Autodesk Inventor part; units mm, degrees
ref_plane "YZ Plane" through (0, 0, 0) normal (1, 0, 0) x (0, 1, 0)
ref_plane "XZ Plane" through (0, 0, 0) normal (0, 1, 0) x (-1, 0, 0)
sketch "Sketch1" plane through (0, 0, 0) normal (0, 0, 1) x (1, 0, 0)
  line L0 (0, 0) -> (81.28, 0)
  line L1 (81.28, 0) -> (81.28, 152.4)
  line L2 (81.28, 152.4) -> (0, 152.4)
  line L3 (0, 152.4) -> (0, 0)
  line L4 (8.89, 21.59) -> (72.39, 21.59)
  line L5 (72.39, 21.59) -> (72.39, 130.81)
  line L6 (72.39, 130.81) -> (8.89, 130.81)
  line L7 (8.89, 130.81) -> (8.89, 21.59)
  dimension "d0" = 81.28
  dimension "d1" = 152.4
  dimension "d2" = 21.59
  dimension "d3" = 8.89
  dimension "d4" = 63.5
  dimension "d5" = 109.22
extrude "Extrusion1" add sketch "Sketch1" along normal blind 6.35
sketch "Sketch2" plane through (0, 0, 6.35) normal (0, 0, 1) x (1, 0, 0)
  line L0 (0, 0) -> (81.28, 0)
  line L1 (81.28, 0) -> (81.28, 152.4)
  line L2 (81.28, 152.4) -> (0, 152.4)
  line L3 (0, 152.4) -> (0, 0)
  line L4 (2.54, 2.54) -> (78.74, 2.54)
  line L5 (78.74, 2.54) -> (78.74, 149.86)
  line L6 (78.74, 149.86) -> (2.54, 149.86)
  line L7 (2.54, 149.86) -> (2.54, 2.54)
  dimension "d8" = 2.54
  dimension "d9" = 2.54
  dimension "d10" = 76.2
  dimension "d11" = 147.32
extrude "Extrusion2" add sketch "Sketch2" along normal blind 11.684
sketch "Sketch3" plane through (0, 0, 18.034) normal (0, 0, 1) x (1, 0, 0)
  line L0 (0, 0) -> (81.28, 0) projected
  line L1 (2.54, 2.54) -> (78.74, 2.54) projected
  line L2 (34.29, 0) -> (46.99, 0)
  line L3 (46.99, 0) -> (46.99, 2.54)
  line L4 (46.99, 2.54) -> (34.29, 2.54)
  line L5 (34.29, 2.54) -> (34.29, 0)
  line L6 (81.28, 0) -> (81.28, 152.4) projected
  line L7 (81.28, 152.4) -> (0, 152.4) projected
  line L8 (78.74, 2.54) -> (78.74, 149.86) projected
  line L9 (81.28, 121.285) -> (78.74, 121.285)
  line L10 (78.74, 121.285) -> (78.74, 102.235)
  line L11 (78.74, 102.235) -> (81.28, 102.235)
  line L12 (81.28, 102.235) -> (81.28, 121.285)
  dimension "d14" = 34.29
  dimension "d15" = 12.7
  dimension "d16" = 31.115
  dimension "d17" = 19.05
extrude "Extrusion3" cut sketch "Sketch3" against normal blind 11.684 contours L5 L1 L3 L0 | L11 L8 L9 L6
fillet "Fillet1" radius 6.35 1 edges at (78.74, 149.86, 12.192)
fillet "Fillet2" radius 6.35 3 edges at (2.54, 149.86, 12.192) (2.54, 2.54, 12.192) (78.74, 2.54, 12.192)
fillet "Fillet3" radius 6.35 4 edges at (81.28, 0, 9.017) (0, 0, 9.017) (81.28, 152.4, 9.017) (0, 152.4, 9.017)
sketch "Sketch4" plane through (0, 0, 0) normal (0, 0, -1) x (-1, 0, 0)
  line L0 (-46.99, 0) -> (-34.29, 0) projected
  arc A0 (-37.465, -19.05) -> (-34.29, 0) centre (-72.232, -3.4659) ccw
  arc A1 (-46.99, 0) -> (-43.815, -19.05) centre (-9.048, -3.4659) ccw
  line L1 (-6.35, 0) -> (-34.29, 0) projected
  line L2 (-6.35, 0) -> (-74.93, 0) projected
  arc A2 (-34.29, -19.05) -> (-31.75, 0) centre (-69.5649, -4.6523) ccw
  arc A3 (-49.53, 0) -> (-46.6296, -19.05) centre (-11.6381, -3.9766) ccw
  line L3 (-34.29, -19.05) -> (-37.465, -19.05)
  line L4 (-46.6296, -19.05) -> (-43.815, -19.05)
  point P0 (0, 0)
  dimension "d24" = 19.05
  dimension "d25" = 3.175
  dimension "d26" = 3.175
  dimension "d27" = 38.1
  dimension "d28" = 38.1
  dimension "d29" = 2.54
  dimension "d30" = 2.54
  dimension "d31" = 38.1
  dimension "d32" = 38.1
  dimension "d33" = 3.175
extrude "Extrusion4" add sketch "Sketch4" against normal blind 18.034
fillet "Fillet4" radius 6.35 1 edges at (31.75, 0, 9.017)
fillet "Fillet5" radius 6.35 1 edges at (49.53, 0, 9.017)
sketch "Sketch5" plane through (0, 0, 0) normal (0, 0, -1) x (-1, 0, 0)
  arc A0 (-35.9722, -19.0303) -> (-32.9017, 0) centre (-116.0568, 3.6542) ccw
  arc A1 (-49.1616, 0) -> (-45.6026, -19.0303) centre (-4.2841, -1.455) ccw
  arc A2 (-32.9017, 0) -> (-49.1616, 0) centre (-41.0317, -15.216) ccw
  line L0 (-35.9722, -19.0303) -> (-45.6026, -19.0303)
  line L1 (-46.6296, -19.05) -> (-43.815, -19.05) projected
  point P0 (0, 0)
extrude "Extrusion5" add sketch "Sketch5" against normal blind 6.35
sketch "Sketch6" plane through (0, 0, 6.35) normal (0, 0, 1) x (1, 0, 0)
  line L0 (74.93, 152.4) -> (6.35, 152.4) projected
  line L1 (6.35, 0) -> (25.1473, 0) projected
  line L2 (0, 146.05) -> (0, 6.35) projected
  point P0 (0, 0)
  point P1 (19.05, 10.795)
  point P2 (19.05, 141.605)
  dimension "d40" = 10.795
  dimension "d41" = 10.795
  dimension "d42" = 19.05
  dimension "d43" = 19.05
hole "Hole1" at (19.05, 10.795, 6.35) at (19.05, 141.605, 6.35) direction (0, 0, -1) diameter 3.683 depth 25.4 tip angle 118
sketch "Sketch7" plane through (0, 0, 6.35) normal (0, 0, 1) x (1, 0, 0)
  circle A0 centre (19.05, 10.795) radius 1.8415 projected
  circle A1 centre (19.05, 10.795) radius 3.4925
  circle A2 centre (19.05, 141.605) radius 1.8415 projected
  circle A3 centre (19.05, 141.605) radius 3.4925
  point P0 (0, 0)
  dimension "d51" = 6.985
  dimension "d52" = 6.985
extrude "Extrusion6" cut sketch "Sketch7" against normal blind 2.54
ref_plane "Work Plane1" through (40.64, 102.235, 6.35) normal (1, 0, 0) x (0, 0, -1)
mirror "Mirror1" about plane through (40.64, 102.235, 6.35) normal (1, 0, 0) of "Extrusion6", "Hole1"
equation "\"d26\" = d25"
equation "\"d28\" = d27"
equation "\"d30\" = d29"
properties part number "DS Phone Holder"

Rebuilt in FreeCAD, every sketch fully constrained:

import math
import FreeCAD as App
import Part
import Sketcher
from FreeCAD import Vector
Q = App.Units.Quantity


def edges_at(feature, points):
    """Names of the edges that pass closest to the given points."""
    edges = feature.Shape.Edges
    near = lambda p: min(range(len(edges)), key=lambda i: edges[i].distToShape(Part.Vertex(*p))[0])
    return sorted({f"Edge{near(p) + 1}" for p in points})


def add_polygon(sketch, points):
    """Adds a closed chain of lines whose ends are joined by coincident constraints."""
    first, n = sketch.GeometryCount, len(points)
    for a, b in zip(points, points[1:] + points[:1]):
        sketch.addGeometry(Part.LineSegment(App.Vector(*a, 0), App.Vector(*b, 0)), False)
    for i in range(n):
        sketch.addConstraint(Sketcher.Constraint("Coincident", first + i, 2, first + (i + 1) % n, 1))

doc = App.newDocument("Part")
body = doc.addObject("PartDesign::Body", "Body")

sketch1 = doc.addObject("Sketcher::SketchObject", "Sketch")
body.addObject(sketch1)
sketch1.AttachmentSupport = (doc.XY_Plane, [""])
sketch1.MapMode = "FlatFace"
add_polygon(sketch1, [(0, 152), (0, 0), (81, 0), (81, 152)])
add_polygon(sketch1, [(72, 22), (9, 22), (9, 131), (72, 131)])
sketch1.addConstraint([
    Sketcher.Constraint("Vertical", 0),
    Sketcher.Constraint("Horizontal", 1),
    Sketcher.Constraint("Vertical", 2),
    Sketcher.Constraint("Horizontal", 3),
    Sketcher.Constraint("Horizontal", 4),
    Sketcher.Constraint("Vertical", 5),
    Sketcher.Constraint("Horizontal", 6),
    Sketcher.Constraint("Vertical", 7),
    Sketcher.Constraint("Coincident", 0, 2, -1, 1),
    Sketcher.Constraint("DistanceY", 0, 2, 0, 1, Q("6 in")),
    Sketcher.Constraint("DistanceX", 1, 1, 1, 2, Q("3.2 in")),
    Sketcher.Constraint("DistanceX", 4, 2, 4, 1, Q("2.5 in")),
    Sketcher.Constraint("DistanceY", 5, 1, 5, 2, Q("4.3 in")),
    Sketcher.Constraint("DistanceX", -1, 1, 4, 2, Q("0.35 in")),
    Sketcher.Constraint("DistanceY", -1, 1, 4, 2, Q("0.85 in")),
])
pad1 = doc.addObject("PartDesign::Pad", "Pad")
body.addObject(pad1)
pad1.Profile = sketch1
pad1.Length = Q("0.25 in")

sketch2 = doc.addObject("Sketcher::SketchObject", "Sketch001")
body.addObject(sketch2)
sketch2.AttachmentSupport = (doc.XY_Plane, [""])
sketch2.MapMode = "FlatFace"
sketch2.AttachmentOffset = App.Placement(Vector(0, 0, 0.25 * 25.4), App.Rotation())
add_polygon(sketch2, [(0, 152), (0, 0), (81, 0), (81, 152)])
add_polygon(sketch2, [(79, 3), (3, 3), (3, 150), (79, 150)])
sketch2.addConstraint([
    Sketcher.Constraint("Vertical", 0),
    Sketcher.Constraint("Horizontal", 1),
    Sketcher.Constraint("Vertical", 2),
    Sketcher.Constraint("Horizontal", 3),
    Sketcher.Constraint("Horizontal", 4),
    Sketcher.Constraint("Vertical", 5),
    Sketcher.Constraint("Horizontal", 6),
    Sketcher.Constraint("Vertical", 7),
    Sketcher.Constraint("Coincident", 0, 2, -1, 1),
    Sketcher.Constraint("DistanceX", 4, 2, 4, 1, Q("3 in")),
    Sketcher.Constraint("DistanceY", 5, 1, 5, 2, Q("5.8 in")),
    Sketcher.Constraint("DistanceX", -1, 1, 4, 2, Q("0.1 in")),
    Sketcher.Constraint("DistanceY", -1, 1, 4, 2, Q("0.1 in")),
    Sketcher.Constraint("DistanceY", 5, 2, 3, 2, Q("0.1 in")),
    Sketcher.Constraint("DistanceX", 6, 2, 2, 2, Q("0.1 in")),
])
pad2 = doc.addObject("PartDesign::Pad", "Pad001")
body.addObject(pad2)
pad2.Profile = sketch2
pad2.Length = Q("0.46 in")

sketch3 = doc.addObject("Sketcher::SketchObject", "Sketch002")
body.addObject(sketch3)
sketch3.AttachmentSupport = (doc.XY_Plane, [""])
sketch3.MapMode = "FlatFace"
sketch3.AttachmentOffset = App.Placement(Vector(0, 0, 0.71 * 25.4), App.Rotation())
add_polygon(sketch3, [(34.3, 2.5), (34.3, 0), (47, 0), (47, 2.5)])
add_polygon(sketch3, [(78.7, 102.2), (81.3, 102.2), (81.3, 121.3), (78.7, 121.3)])
sketch3.addConstraint([
    Sketcher.Constraint("Vertical", 0),
    Sketcher.Constraint("Horizontal", 1),
    Sketcher.Constraint("Vertical", 2),
    Sketcher.Constraint("Horizontal", 3),
    Sketcher.Constraint("Horizontal", 4),
    Sketcher.Constraint("Vertical", 5),
    Sketcher.Constraint("Horizontal", 6),
    Sketcher.Constraint("Vertical", 7),
    Sketcher.Constraint("PointOnObject", 0, 2, -1),
    Sketcher.Constraint("Equal", 6, 0),
    Sketcher.Constraint("DistanceX", 1, 1, 1, 2, Q("0.5 in")),
    Sketcher.Constraint("DistanceY", 5, 1, 5, 2, Q("0.75 in")),
    Sketcher.Constraint("DistanceX", -1, 1, 0, 2, Q("1.35 in")),
    Sketcher.Constraint("DistanceX", 2, 2, 4, 2, Q("1.35 in")),
    Sketcher.Constraint("DistanceX", 4, 1, 4, 2, Q("0.1 in")),
    Sketcher.Constraint("DistanceY", -1, 1, 4, 2, Q("4.025 in")),
])
pocket1 = doc.addObject("PartDesign::Pocket", "Pocket")
body.addObject(pocket1)
pocket1.Profile = sketch3
pocket1.Length = Q("0.46 in")
doc.recompute()

fillet = doc.addObject("PartDesign::Fillet", "Fillet")
body.addObject(fillet)
fillet.Base = (pocket1, edges_at(pocket1, [(78.74, 149.86, 12.192)]))
fillet.Radius = Q("0.25 in")
doc.recompute()

fillet2 = doc.addObject("PartDesign::Fillet", "Fillet001")
body.addObject(fillet2)
fillet2.Base = (fillet, edges_at(fillet, [(2.54, 149.86, 12.192), (2.54, 2.54, 12.192), (78.74, 2.54, 12.192)]))
fillet2.Radius = Q("0.25 in")
doc.recompute()

fillet3 = doc.addObject("PartDesign::Fillet", "Fillet002")
body.addObject(fillet3)
fillet3.Base = (fillet2, edges_at(fillet2, [
    (81.28, 0, 9.017),
    (0, 0, 9.017),
    (81.28, 152.4, 9.017),
    (0, 152.4, 9.017),
]))
fillet3.Radius = Q("0.25 in")

sketch4 = doc.addObject("Sketcher::SketchObject", "Sketch003")
body.addObject(sketch4)
sketch4.AttachmentSupport = (doc.XY_Plane, [""])
sketch4.MapMode = "FlatFace"
sketch4.addGeometry([
    Part.LineSegment(Vector(31.8, 0, 0), Vector(34.3, 0, 0)),
    Part.ArcOfCircle(Part.Circle(Vector(72.2, -3.5, 0), Vector(0, 0, 1), 38.1), math.radians(175), math.radians(204)),
    Part.LineSegment(Vector(37.5, -19.1, 0), Vector(34.3, -19.1, 0)),
    Part.ArcOfCircle(Part.Circle(Vector(69.6, -4.7, 0), Vector(0, 0, 1), 38.1), math.radians(173), math.radians(202)),
    Part.ArcOfCircle(Part.Circle(Vector(9, -3.5, 0), Vector(0, 0, 1), 38.1), math.radians(-24), math.radians(5)),
    Part.LineSegment(Vector(47, 0, 0), Vector(49.5, 0, 0)),
    Part.ArcOfCircle(Part.Circle(Vector(11.6, -4, 0), Vector(0, 0, 1), 38.1), math.radians(-23), math.radians(6)),
    Part.LineSegment(Vector(46.6, -19.1, 0), Vector(43.8, -19.1, 0)),
], False)
sketch4.addConstraint([
    Sketcher.Constraint("Coincident", 0, 2, 1, 1),
    Sketcher.Constraint("Coincident", 1, 2, 2, 1),
    Sketcher.Constraint("Coincident", 2, 2, 3, 2),
    Sketcher.Constraint("Coincident", 3, 1, 0, 1),
    Sketcher.Constraint("Coincident", 4, 2, 5, 1),
    Sketcher.Constraint("Coincident", 5, 2, 6, 2),
    Sketcher.Constraint("Coincident", 6, 1, 7, 1),
    Sketcher.Constraint("Coincident", 7, 2, 4, 1),
    Sketcher.Constraint("Horizontal", 0),
    Sketcher.Constraint("Horizontal", 2),
    Sketcher.Constraint("Horizontal", 5),
    Sketcher.Constraint("Horizontal", 7),
    Sketcher.Constraint("Equal", 1, 3),
    Sketcher.Constraint("Equal", 3, 4),
    Sketcher.Constraint("Equal", 4, 6),
    Sketcher.Constraint("PointOnObject", 0, 2, -1),
    Sketcher.Constraint("PointOnObject", 4, 2, -1),
    Sketcher.Constraint("Horizontal", 1, 3, 4, 3),
    Sketcher.Constraint("Horizontal", 2, 2, 6, 1),
    Sketcher.Constraint("Vertical", 0, 2, 2, 2),
    Sketcher.Constraint("Equal", 0, 5),
    Sketcher.Constraint("Radius", 1, Q("1.5 in")),
    Sketcher.Constraint("DistanceX", 0, 1, 0, 2, Q("0.1 in")),
    Sketcher.Constraint("DistanceX", 2, 2, 2, 1, Q("0.125 in")),
    Sketcher.Constraint("DistanceY", 1, 2, -1, 1, Q("0.75 in")),
    Sketcher.Constraint("DistanceX", 0, 2, 4, 2, Q("0.5 in")),
    Sketcher.Constraint("DistanceX", -1, 1, 0, 2, Q("1.35 in")),
    Sketcher.Constraint("DistanceX", 7, 2, 7, 1, Q("0.1108 in")),
])
pad3 = doc.addObject("PartDesign::Pad", "Pad002")
body.addObject(pad3)
pad3.Profile = sketch4
pad3.Length = Q("0.71 in")
doc.recompute()

fillet4 = doc.addObject("PartDesign::Fillet", "Fillet003")
body.addObject(fillet4)
fillet4.Base = (pad3, edges_at(pad3, [(31.75, 0, 9.017)]))
fillet4.Radius = Q("0.25 in")
doc.recompute()

fillet5 = doc.addObject("PartDesign::Fillet", "Fillet004")
body.addObject(fillet5)
fillet5.Base = (fillet4, edges_at(fillet4, [(49.53, 0, 9.017)]))
fillet5.Radius = Q("0.25 in")

sketch5 = doc.addObject("Sketcher::SketchObject", "Sketch004")
body.addObject(sketch5)
sketch5.AttachmentSupport = (doc.XY_Plane, [""])
sketch5.MapMode = "FlatFace"
sketch5.addGeometry([
    Part.LineSegment(Vector(46, -19, 0), Vector(36, -19, 0)),
    Part.ArcOfCircle(Part.Circle(Vector(116, 4, 0), Vector(0, 0, 1), 83), math.radians(-177.48), math.radians(-164.18)),
    Part.ArcOfCircle(Part.Circle(Vector(41, -15, 0), Vector(0, 0, 1), 17), math.radians(62), math.radians(118)),
    Part.ArcOfCircle(Part.Circle(Vector(4, -1, 0), Vector(0, 0, 1), 45), math.radians(-23), math.radians(2)),
], False)
sketch5.addConstraint([
    Sketcher.Constraint("Coincident", 0, 2, 1, 2),
    Sketcher.Constraint("Coincident", 1, 1, 2, 2),
    Sketcher.Constraint("Coincident", 2, 1, 3, 2),
    Sketcher.Constraint("Coincident", 3, 1, 0, 1),
    Sketcher.Constraint("Horizontal", 0),
    Sketcher.Constraint("PointOnObject", 1, 1, -1),
    Sketcher.Constraint("PointOnObject", 2, 1, -1),
    Sketcher.Constraint("Radius", 2, Q("0.6792 in")),
    Sketcher.Constraint("Radius", 1, 83.2328),
    Sketcher.Constraint("Radius", 3, 44.901),
    Sketcher.Constraint("DistanceX", 0, 2, 0, 1, 9.6304),
    Sketcher.Constraint("DistanceX", -1, 1, 2, 1, Q("1.9355 in")),
    Sketcher.Constraint("DistanceY", 2, 3, 1, 3, Q("0.7429 in")),
    Sketcher.Constraint("DistanceX", 3, 3, 1, 3, Q("4.4004 in")),
    Sketcher.Constraint("DistanceX", 0, 2, 2, 3, Q("0.1992 in")),
])
pad4 = doc.addObject("PartDesign::Pad", "Pad003")
body.addObject(pad4)
pad4.Profile = sketch5
pad4.Length = Q("0.25 in")

sketch6 = doc.addObject("Sketcher::SketchObject", "Sketch005")
body.addObject(sketch6)
sketch6.AttachmentSupport = (doc.XY_Plane, [""])
sketch6.MapMode = "FlatFace"
sketch6.AttachmentOffset = App.Placement(Vector(0, 0, 0.25 * 25.4), App.Rotation())
sketch6.addGeometry([
    Part.Circle(Vector(19.1, 10.8, 0), Vector(0, 0, 1), 1.8),
    Part.Circle(Vector(19.1, 141.6, 0), Vector(0, 0, 1), 1.8),
], False)
sketch6.addConstraint([
    Sketcher.Constraint("Equal", 0, 1),
    Sketcher.Constraint("Vertical", 0, 3, 1, 3),
    Sketcher.Constraint("Diameter", 0, Q("0.145 in")),
    Sketcher.Constraint("DistanceX", -1, 1, 0, 3, Q("0.75 in")),
    Sketcher.Constraint("DistanceY", 0, 3, 1, 3, Q("5.15 in")),
    Sketcher.Constraint("DistanceY", -1, 1, 0, 3, Q("0.425 in")),
])
doc.recompute()
hole = doc.addObject("PartDesign::Hole", "Hole")
body.addObject(hole)
hole.Profile = sketch6
hole.ThreadType = "None"
hole.Diameter = Q("0.145 in")
hole.DepthType = "Dimension"
hole.Depth = Q("1 in")
hole.DrillPoint = "Angled"
hole.DrillPointAngle = 118

sketch7 = doc.addObject("Sketcher::SketchObject", "Sketch006")
body.addObject(sketch7)
sketch7.AttachmentSupport = (doc.XY_Plane, [""])
sketch7.MapMode = "FlatFace"
sketch7.AttachmentOffset = App.Placement(Vector(0, 0, 0.25 * 25.4), App.Rotation())
sketch7.addGeometry([
    Part.Circle(Vector(19.1, 10.8, 0), Vector(0, 0, 1), 3.5),
    Part.Circle(Vector(19.1, 10.8, 0), Vector(0, 0, 1), 1.8),
    Part.Circle(Vector(19.1, 141.6, 0), Vector(0, 0, 1), 3.5),
    Part.Circle(Vector(19.1, 141.6, 0), Vector(0, 0, 1), 1.8),
], False)
sketch7.addConstraint([
    Sketcher.Constraint("Coincident", 1, 3, 0, 3),
    Sketcher.Constraint("Coincident", 3, 3, 2, 3),
    Sketcher.Constraint("Equal", 0, 2),
    Sketcher.Constraint("Equal", 1, 3),
    Sketcher.Constraint("Vertical", 1, 3, 2, 3),
    Sketcher.Constraint("Diameter", 0, Q("0.275 in")),
    Sketcher.Constraint("Diameter", 1, Q("0.145 in")),
    Sketcher.Constraint("DistanceX", -1, 1, 0, 3, Q("0.75 in")),
    Sketcher.Constraint("DistanceY", 0, 3, 2, 3, Q("5.15 in")),
    Sketcher.Constraint("DistanceY", -1, 1, 0, 3, Q("0.425 in")),
])
pocket2 = doc.addObject("PartDesign::Pocket", "Pocket001")
body.addObject(pocket2)
pocket2.Profile = sketch7
pocket2.Length = Q("0.1 in")
doc.recompute()

datumplane = doc.addObject("PartDesign::Plane", "DatumPlane")
body.addObject(datumplane)
datumplane.AttachmentSupport = (doc.YZ_Plane, [""])
datumplane.MapMode = "FlatFace"
datumplane.AttachmentOffset = App.Placement(Vector(0, 0, 1.6 * 25.4), App.Rotation())
mirrored = doc.addObject("PartDesign::Mirrored", "Mirrored")
body.addObject(mirrored)
mirrored.Originals = [pocket2, hole]
mirrored.MirrorPlane = (datumplane, [""])
body.Tip = mirrored

doc.recompute()
